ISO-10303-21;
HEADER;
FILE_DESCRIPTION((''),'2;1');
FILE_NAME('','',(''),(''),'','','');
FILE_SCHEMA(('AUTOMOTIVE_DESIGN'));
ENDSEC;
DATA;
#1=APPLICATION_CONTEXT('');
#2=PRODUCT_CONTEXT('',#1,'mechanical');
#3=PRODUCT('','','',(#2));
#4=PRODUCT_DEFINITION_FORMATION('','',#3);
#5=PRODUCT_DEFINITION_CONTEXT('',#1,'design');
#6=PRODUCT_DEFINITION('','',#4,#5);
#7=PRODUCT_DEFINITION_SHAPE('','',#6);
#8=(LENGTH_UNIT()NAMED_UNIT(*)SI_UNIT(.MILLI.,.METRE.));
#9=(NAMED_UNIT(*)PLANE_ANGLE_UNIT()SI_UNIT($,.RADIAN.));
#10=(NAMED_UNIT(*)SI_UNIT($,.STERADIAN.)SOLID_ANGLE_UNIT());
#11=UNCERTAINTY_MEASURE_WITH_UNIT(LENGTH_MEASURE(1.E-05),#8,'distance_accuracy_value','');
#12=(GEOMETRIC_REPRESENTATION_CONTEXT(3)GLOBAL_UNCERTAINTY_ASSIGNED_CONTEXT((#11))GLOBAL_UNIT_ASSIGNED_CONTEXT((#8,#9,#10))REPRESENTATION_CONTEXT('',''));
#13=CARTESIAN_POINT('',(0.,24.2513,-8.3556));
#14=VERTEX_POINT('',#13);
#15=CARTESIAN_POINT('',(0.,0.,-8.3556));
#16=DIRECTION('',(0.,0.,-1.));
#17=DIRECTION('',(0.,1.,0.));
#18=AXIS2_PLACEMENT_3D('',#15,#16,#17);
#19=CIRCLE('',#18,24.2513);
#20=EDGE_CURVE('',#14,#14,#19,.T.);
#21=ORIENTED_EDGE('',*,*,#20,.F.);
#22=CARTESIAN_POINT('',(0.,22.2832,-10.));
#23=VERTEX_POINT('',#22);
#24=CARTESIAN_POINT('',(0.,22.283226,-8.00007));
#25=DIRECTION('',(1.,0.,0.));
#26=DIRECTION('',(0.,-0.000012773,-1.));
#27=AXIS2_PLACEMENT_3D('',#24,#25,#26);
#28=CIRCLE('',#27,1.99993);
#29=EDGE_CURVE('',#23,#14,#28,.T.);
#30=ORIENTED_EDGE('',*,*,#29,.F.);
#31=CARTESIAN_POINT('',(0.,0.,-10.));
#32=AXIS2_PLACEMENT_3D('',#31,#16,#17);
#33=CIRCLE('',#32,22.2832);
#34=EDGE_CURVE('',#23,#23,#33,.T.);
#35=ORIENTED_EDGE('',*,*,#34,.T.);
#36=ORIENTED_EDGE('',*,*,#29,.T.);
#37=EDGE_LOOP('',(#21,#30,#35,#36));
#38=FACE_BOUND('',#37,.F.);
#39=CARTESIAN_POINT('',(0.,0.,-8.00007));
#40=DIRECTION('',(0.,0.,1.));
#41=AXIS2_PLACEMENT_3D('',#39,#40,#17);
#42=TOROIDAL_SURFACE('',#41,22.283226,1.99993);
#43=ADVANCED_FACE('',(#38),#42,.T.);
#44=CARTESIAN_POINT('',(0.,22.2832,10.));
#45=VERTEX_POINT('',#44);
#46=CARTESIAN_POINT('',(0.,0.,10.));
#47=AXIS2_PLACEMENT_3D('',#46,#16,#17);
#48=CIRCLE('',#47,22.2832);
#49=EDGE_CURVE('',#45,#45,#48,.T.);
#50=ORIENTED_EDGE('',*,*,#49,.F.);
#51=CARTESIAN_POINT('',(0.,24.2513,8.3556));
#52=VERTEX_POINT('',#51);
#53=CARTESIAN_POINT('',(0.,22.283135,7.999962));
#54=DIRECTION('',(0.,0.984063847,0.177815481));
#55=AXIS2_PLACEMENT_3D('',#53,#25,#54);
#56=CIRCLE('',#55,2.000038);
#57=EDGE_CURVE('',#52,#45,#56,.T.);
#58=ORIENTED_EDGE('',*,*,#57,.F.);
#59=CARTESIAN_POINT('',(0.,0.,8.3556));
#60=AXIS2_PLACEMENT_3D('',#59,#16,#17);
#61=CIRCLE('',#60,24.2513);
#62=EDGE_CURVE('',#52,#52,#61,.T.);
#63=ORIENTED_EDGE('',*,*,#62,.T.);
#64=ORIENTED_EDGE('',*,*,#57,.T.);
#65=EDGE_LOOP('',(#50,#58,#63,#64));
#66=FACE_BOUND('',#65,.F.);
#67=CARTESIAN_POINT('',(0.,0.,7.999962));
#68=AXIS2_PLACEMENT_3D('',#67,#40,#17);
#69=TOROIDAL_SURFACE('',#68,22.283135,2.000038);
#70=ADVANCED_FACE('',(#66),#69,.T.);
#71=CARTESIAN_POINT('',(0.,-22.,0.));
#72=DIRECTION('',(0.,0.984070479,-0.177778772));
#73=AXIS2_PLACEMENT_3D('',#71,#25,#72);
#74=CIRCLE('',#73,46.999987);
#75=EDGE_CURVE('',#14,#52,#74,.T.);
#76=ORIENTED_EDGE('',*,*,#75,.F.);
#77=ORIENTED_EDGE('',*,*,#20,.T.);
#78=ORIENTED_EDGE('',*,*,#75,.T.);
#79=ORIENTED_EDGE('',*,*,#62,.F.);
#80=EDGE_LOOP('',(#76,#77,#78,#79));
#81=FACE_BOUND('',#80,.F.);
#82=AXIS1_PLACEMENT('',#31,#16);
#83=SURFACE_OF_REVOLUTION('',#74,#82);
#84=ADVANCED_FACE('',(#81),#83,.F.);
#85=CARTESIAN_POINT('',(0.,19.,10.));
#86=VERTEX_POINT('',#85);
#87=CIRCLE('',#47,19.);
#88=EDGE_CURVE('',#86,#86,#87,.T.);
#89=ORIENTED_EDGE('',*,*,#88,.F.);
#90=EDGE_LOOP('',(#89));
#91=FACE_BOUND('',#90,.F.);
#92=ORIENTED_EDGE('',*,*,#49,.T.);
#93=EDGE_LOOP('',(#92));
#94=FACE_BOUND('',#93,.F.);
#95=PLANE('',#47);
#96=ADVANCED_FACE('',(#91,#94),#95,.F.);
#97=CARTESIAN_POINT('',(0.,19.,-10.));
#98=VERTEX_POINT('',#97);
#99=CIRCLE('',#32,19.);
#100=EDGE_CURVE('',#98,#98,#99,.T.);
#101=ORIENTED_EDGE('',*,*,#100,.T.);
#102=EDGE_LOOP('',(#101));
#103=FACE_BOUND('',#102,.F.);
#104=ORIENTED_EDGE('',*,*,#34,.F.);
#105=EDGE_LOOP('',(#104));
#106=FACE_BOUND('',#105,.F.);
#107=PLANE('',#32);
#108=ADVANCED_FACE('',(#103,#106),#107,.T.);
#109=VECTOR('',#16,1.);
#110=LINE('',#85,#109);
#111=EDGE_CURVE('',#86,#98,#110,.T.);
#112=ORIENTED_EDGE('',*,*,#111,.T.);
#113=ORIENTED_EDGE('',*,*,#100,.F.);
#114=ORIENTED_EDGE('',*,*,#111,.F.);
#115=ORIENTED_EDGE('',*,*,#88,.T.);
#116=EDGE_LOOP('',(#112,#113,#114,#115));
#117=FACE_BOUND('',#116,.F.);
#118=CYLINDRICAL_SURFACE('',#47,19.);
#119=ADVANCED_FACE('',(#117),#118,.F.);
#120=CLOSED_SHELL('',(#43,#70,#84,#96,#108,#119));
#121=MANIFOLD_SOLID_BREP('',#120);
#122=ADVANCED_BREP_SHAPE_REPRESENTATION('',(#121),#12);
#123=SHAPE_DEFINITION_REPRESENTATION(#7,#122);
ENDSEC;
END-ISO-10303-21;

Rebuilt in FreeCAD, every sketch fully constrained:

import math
import FreeCAD as App
import Part
import Sketcher
from FreeCAD import Vector

doc = App.newDocument("Part")
body = doc.addObject("PartDesign::Body", "Body")

# Sketch on YZ plane
sketch1 = body.newObject("Sketcher::SketchObject", "Sketch")
sketch1.AttachmentSupport = (doc.getObject("YZ_Plane"), [""])
sketch1.MapMode = "FlatFace"
sketch1.addGeometry([
    Part.ArcOfCircle(Part.Circle(Vector(22.2832, 8, 0), Vector(0, 0, 1), 1.999967), math.radians(10.241812), math.radians(90)),  # 0
    Part.LineSegment(Vector(22.2832, 10, 0), Vector(19, 10, 0)),  # 1
    Part.LineSegment(Vector(19, 10, 0), Vector(19, -10, 0)),  # 2
    Part.LineSegment(Vector(19, -10, 0), Vector(22.2832, -10, 0)),  # 3
    Part.ArcOfCircle(Part.Circle(Vector(22.2832, -8, 0), Vector(0, 0, 1), 2), math.radians(-90), math.radians(-10.241812)),  # 4
    Part.ArcOfCircle(Part.Circle(Vector(-22, 0, 0), Vector(0, 0, 1), 46.999987), math.radians(-10.240406), math.radians(10.240406)),  # 5
], False)
sketch1.addConstraint([
    Sketcher.Constraint("Tangent", 0, 2, 1, 1),
    Sketcher.Constraint("Coincident", 1, 2, 2, 1),
    Sketcher.Constraint("Coincident", 2, 2, 3, 1),
    Sketcher.Constraint("Tangent", 3, 2, 4, 1),
    Sketcher.Constraint("Tangent", 4, 2, 5, 1),
    Sketcher.Constraint("Tangent", 5, 2, 0, 1),
    Sketcher.Constraint("Horizontal", 1),
    Sketcher.Constraint("Vertical", 2),
    Sketcher.Constraint("Horizontal", 3),
    Sketcher.Constraint("Equal", 0, 4),
    Sketcher.Constraint("Symmetric", 0, 3, 4, 3, -1),
    Sketcher.Constraint("Radius", 0, 2.0),
    Sketcher.Constraint("Radius", 5, 47.0),
    Sketcher.Constraint("DistanceY", 2, 2, 2, 1, 20.0),
    Sketcher.Constraint("DistanceX", 5, 3, -1, 1, 22.0),
    Sketcher.Constraint("DistanceX", -1, 1, 1, 2, 19.0),
])
revolution = body.newObject("PartDesign::Revolution", "Revolution")
revolution.Profile = sketch1
revolution.ReferenceAxis = (sketch1, ["V_Axis"])
revolution.Angle = 360

doc.recompute()
